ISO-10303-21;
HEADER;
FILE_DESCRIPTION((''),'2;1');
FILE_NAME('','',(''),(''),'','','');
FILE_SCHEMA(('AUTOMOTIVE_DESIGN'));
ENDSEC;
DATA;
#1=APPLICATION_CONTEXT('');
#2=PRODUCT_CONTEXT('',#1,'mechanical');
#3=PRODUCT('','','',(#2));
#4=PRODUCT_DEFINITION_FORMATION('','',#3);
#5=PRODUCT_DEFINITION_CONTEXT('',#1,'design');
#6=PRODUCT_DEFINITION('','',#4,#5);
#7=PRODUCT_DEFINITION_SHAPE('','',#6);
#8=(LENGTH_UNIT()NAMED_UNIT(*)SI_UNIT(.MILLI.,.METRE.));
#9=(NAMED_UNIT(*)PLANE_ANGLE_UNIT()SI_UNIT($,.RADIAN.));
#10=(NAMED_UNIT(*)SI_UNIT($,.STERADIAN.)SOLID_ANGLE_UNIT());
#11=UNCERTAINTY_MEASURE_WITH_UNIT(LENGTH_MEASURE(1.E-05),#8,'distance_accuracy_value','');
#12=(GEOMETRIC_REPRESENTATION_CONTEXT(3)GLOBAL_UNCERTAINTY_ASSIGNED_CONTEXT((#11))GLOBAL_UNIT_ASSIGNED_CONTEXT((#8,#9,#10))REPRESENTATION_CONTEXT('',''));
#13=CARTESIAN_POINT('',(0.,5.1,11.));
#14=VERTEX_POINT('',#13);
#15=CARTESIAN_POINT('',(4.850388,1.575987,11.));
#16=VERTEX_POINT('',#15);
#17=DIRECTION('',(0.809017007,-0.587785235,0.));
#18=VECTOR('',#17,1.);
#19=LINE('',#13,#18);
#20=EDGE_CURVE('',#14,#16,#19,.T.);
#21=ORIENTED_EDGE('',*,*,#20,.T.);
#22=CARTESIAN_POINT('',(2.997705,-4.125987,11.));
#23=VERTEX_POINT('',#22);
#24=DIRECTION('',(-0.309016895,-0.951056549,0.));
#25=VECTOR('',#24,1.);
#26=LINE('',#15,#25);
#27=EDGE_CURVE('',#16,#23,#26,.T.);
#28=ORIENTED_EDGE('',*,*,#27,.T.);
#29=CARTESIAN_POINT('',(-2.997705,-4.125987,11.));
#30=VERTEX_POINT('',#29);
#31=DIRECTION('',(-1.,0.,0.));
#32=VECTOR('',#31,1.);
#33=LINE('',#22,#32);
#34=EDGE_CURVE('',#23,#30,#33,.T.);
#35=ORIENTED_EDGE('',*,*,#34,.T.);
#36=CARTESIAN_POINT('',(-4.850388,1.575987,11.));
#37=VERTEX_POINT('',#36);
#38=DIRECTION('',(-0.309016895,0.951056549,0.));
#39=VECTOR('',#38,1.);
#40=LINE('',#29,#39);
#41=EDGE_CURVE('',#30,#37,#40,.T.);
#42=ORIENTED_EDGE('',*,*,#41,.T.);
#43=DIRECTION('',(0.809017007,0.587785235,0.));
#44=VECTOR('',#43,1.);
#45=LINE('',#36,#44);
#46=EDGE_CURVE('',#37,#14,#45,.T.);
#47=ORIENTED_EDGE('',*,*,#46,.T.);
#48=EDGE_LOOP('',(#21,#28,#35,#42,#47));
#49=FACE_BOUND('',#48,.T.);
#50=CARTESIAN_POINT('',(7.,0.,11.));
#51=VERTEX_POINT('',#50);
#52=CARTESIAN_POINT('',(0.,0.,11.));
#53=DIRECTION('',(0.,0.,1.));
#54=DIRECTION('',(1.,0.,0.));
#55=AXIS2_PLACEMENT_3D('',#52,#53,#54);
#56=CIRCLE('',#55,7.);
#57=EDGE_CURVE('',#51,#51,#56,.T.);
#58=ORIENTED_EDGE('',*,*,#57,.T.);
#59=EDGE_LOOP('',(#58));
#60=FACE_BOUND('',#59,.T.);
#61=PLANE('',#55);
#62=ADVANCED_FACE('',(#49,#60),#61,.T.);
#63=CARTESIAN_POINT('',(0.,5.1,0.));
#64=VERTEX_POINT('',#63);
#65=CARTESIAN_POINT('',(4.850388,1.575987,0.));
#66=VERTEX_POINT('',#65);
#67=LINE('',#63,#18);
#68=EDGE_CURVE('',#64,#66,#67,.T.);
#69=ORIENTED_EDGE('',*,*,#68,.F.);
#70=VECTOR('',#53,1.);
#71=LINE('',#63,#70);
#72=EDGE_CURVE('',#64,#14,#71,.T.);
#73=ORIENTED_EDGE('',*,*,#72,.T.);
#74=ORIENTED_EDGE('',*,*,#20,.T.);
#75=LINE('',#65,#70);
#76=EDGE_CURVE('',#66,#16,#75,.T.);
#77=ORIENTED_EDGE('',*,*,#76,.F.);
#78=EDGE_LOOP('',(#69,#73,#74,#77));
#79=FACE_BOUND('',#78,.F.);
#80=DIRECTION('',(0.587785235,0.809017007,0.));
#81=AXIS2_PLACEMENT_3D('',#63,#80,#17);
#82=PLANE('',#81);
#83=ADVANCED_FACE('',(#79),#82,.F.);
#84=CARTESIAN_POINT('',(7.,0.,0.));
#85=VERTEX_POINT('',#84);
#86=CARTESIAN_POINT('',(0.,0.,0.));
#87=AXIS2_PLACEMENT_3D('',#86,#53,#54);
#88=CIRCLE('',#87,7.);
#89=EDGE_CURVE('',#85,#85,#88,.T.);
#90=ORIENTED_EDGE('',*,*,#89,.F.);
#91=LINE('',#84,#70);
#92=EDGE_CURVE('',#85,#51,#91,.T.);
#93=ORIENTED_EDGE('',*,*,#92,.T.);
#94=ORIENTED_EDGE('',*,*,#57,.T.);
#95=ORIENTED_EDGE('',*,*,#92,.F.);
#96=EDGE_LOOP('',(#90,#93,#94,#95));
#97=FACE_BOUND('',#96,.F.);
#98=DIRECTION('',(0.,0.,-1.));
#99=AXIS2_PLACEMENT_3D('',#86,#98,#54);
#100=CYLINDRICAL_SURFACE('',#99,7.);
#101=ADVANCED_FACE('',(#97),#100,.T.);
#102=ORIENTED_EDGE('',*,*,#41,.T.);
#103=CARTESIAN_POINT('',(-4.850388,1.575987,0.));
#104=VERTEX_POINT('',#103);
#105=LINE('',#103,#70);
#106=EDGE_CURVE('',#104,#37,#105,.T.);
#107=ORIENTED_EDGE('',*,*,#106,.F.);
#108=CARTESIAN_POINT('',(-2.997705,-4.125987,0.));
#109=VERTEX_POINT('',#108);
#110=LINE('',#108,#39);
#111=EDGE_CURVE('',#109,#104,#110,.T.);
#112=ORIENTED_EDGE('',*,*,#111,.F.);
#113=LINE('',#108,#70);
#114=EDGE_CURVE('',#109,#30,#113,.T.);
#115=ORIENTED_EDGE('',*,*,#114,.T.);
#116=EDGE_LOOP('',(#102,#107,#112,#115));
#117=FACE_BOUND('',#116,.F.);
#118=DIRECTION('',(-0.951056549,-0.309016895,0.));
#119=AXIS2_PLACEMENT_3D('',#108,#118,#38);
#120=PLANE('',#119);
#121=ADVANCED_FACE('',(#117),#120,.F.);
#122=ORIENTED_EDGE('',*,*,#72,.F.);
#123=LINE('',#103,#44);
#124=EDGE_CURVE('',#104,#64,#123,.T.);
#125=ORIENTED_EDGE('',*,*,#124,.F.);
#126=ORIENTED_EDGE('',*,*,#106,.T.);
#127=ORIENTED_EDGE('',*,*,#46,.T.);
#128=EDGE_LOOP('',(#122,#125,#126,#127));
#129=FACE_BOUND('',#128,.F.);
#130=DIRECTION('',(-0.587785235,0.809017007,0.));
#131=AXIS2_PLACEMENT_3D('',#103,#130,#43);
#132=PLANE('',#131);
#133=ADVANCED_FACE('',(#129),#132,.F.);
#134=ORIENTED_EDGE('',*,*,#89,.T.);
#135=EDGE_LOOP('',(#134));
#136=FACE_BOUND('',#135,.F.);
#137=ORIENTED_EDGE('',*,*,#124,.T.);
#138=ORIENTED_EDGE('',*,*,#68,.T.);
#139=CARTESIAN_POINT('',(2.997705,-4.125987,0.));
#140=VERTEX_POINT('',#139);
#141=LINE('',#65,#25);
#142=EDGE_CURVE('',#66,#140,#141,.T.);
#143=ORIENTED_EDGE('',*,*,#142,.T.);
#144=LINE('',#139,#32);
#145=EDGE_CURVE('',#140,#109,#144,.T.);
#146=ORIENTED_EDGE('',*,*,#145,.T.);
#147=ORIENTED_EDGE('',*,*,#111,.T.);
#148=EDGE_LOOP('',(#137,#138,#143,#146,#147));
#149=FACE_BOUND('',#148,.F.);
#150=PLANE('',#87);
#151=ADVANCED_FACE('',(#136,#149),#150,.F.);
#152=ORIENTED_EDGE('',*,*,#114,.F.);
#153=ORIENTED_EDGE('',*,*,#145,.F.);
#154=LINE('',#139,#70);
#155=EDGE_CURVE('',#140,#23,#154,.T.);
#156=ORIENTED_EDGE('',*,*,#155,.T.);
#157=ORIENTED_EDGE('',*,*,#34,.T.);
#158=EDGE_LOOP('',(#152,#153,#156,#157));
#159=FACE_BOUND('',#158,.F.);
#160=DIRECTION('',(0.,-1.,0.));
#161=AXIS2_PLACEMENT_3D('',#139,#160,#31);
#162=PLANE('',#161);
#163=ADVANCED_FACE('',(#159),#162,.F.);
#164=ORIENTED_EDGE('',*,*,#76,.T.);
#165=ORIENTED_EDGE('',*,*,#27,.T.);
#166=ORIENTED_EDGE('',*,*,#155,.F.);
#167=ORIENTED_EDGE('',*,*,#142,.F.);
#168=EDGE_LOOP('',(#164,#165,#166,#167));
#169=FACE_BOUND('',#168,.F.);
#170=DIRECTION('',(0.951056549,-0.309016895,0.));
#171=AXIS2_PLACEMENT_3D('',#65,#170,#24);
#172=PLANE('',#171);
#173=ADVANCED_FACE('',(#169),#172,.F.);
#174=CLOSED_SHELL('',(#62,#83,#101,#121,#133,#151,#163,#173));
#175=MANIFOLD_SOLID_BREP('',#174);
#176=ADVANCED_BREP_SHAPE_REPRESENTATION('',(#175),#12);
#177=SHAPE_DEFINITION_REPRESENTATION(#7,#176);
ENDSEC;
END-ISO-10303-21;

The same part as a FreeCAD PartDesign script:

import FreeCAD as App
import Part
import Sketcher
Q = App.Units.Quantity


def add_polygon(sketch, points):
    """Adds a closed chain of lines whose ends are joined by coincident constraints."""
    first, n = sketch.GeometryCount, len(points)
    for a, b in zip(points, points[1:] + points[:1]):
        sketch.addGeometry(Part.LineSegment(App.Vector(*a, 0), App.Vector(*b, 0)), False)
    for i in range(n):
        sketch.addConstraint(Sketcher.Constraint("Coincident", first + i, 2, first + (i + 1) % n, 1))

doc = App.newDocument("Part")
body = doc.addObject("PartDesign::Body", "Body")

sketch1 = body.newObject("Sketcher::SketchObject", "Sketch")
sketch1.AttachmentSupport = (doc.getObject("XY_Plane"), [""])
sketch1.MapMode = "FlatFace"
sketch1.addGeometry(Part.Circle(App.Vector(0, 0, 0), App.Vector(0, 0, 1), 7), False)
add_polygon(sketch1, [(-5, 2), (0, 5), (5, 2), (3, -4), (-3, -4)])
sketch1.addConstraint(Sketcher.Constraint("Horizontal", 4))
sketch1.addConstraint(Sketcher.Constraint("Coincident", 0, 3, -1, 1))
sketch1.addConstraint(Sketcher.Constraint("Symmetric", 2, 2, 5, 2, -2))
sketch1.addConstraint(Sketcher.Constraint("PointOnObject", 1, 2, -2))
sketch1.addConstraint(Sketcher.Constraint("Equal", 2, 3))
sketch1.addConstraint(Sketcher.Constraint("Equal", 3, 5))
sketch1.addConstraint(Sketcher.Constraint("Diameter", 0, 14.0))
sketch1.addConstraint(Sketcher.Constraint("Angle", 1, Q("35.999999 deg")))
sketch1.addConstraint(Sketcher.Constraint("Angle", 3, Q("-107.999994 deg")))
sketch1.addConstraint(Sketcher.Constraint("DistanceY", -1, 1, 1, 2, 5.1))
sketch1.addConstraint(Sketcher.Constraint("DistanceX", 4, 2, 4, 1, 5.99541))
pad1 = body.newObject("PartDesign::Pad", "Pad")
pad1.Profile = sketch1
pad1.Length = 11

doc.recompute()
